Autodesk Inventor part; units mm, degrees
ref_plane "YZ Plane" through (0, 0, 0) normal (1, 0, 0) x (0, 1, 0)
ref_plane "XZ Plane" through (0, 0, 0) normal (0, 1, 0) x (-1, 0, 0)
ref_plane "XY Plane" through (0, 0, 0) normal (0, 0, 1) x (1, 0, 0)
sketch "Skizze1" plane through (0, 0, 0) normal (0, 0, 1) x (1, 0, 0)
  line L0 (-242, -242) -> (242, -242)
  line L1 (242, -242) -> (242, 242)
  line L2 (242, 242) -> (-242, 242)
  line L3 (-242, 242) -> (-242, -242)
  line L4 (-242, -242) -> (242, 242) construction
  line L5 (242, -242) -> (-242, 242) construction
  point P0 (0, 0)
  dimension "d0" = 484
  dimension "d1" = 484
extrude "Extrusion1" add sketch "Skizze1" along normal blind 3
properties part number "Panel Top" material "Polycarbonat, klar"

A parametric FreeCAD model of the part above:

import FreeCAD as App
import Part
import Sketcher

V = App.Vector


def add_polygon(sketch, points):
    """Adds a closed chain of lines whose ends are joined by coincident constraints."""
    first, n = sketch.GeometryCount, len(points)
    for a, b in zip(points, points[1:] + points[:1]):
        sketch.addGeometry(Part.LineSegment(App.Vector(*a, 0), App.Vector(*b, 0)), False)
    for i in range(n):
        sketch.addConstraint(Sketcher.Constraint("Coincident", first + i, 2, first + (i + 1) % n, 1))

doc = App.newDocument("Part")
params = doc.addObject("Spreadsheet::Sheet", "Params")
for row, (alias, value) in enumerate([
    ("sketch1_width", "484 mm"),
    ("pad1_length", "3 mm"),
], start=1):
    params.set(f"A{row}", alias)
    params.set(f"B{row}", "=" + value)
    params.setAlias(f"B{row}", alias)

body = doc.addObject("PartDesign::Body", "Body")

# Sketch on XY plane
sketch1 = body.newObject("Sketcher::SketchObject", "Sketch")
sketch1.AttachmentSupport = (doc.getObject("XY_Plane"), [""])
sketch1.MapMode = "FlatFace"
add_polygon(sketch1, [(-242, 242), (-242, -242), (242, -242), (242, 242)])  # lines 0-3
sketch1.addConstraint(Sketcher.Constraint("Vertical", 0))
sketch1.addConstraint(Sketcher.Constraint("Horizontal", 1))
sketch1.addConstraint(Sketcher.Constraint("Vertical", 2))
sketch1.addConstraint(Sketcher.Constraint("Horizontal", 3))
sketch1.addConstraint(Sketcher.Constraint("Symmetric", 0, 2, 2, 2, -1, 1))
sketch1.addConstraint(Sketcher.Constraint("Equal", 3, 0))
sketch1.addConstraint(Sketcher.Constraint("DistanceX", 1, 1, 1, 2, 484.0))
sketch1.setExpression("Constraints[10]", "Params.sketch1_width")
pad1 = body.newObject("PartDesign::Pad", "Pad")
pad1.Profile = sketch1
pad1.setExpression("Length", "Params.pad1_length")

doc.recompute()
